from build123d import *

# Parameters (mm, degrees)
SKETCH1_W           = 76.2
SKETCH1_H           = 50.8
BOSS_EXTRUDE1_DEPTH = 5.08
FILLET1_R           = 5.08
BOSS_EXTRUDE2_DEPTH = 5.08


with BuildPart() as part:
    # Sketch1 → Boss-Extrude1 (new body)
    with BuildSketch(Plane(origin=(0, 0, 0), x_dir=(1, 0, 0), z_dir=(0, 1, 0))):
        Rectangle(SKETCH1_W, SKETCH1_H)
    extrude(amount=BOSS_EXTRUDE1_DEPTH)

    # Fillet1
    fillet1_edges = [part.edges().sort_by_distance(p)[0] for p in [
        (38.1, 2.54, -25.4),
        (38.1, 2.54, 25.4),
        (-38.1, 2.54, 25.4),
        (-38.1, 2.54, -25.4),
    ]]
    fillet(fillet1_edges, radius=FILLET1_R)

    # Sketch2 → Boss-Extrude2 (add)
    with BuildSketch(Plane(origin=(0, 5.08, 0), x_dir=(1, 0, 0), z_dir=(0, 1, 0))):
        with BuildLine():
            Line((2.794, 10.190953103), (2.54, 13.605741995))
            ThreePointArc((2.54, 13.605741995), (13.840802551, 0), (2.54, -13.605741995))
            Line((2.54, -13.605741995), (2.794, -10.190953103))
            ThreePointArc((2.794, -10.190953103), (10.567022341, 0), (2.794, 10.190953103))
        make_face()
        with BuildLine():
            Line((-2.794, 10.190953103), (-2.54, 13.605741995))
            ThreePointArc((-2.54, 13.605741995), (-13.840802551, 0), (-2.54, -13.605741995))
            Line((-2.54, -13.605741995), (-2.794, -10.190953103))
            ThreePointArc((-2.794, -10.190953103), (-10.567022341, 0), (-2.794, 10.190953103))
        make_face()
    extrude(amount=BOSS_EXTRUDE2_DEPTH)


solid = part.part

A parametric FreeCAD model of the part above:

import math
import FreeCAD as App
import Part
import Sketcher

V = App.Vector
Q = App.Units.Quantity


def edges_at(feature, points):
    """Names of the edges that pass closest to the given points."""
    edges = feature.Shape.Edges
    near = lambda p: min(range(len(edges)), key=lambda i: edges[i].distToShape(Part.Vertex(*p))[0])
    return sorted({f"Edge{near(p) + 1}" for p in points})


def add_polygon(sketch, points):
    """Adds a closed chain of lines whose ends are joined by coincident constraints."""
    first, n = sketch.GeometryCount, len(points)
    for a, b in zip(points, points[1:] + points[:1]):
        sketch.addGeometry(Part.LineSegment(App.Vector(*a, 0), App.Vector(*b, 0)), False)
    for i in range(n):
        sketch.addConstraint(Sketcher.Constraint("Coincident", first + i, 2, first + (i + 1) % n, 1))

doc = App.newDocument("Part")
body = doc.addObject("PartDesign::Body", "Body")

# Sketch on XZ plane
sketch1 = body.newObject("Sketcher::SketchObject", "Sketch")
sketch1.AttachmentSupport = (doc.getObject("XZ_Plane"), [""])
sketch1.MapMode = "FlatFace"
add_polygon(sketch1, [(-38, -25), (-38, 25), (38, 25), (38, -25)])  # lines 0-3
sketch1.addConstraint([
    Sketcher.Constraint("Vertical", 0),
    Sketcher.Constraint("Horizontal", 1),
    Sketcher.Constraint("Vertical", 2),
    Sketcher.Constraint("Horizontal", 3),
    Sketcher.Constraint("Symmetric", 0, 2, 2, 2, -1, 1),
    Sketcher.Constraint("DistanceX", 1, 1, 1, 2, Q("3 in")),
    Sketcher.Constraint("DistanceY", 0, 1, 0, 2, Q("2 in")),
])
pad1 = body.newObject("PartDesign::Pad", "Pad")
pad1.Profile = sketch1
pad1.Length = Q("0.2 in")
pad1.Reversed = True
doc.recompute()

fillet = body.newObject("PartDesign::Fillet", "Fillet")
fillet.Base = (pad1, edges_at(pad1, [
    (38.1, 2.54, -25.4),
    (38.1, 2.54, 25.4),
    (-38.1, 2.54, 25.4),
    (-38.1, 2.54, -25.4),
]))
fillet.Radius = Q("0.2 in")

# Sketch on XZ plane
sketch2 = body.newObject("Sketcher::SketchObject", "Sketch001")
sketch2.AttachmentSupport = (doc.getObject("XZ_Plane"), [""])
sketch2.MapMode = "FlatFace"
sketch2.AttachmentOffset = App.Placement(V(0, 0, -0.2 * 25.4), App.Rotation())
sketch2.addGeometry([
    Part.LineSegment(V(2.5, -13.6, 0), V(2.8, -10.2, 0)),  # 0
    Part.ArcOfCircle(Part.Circle(V(0, 0, 0), V(0, 0, 1), 10.6), math.radians(-75), math.radians(75)),  # 1
    Part.LineSegment(V(2.8, 10.2, 0), V(2.5, 13.6, 0)),  # 2
    Part.ArcOfCircle(Part.Circle(V(0, 0, 0), V(0, 0, 1), 13.8), math.radians(-79), math.radians(79)),  # 3
    Part.LineSegment(V(-2.8, -10.2, 0), V(-2.5, -13.6, 0)),  # 4
    Part.ArcOfCircle(Part.Circle(V(0, 0, 0), V(0, 0, 1), 13.8), math.radians(101), math.radians(259)),  # 5
    Part.LineSegment(V(-2.5, 13.6, 0), V(-2.8, 10.2, 0)),  # 6
    Part.ArcOfCircle(Part.Circle(V(0, 0, 0), V(0, 0, 1), 10.6), math.radians(105), math.radians(255)),  # 7
], False)
sketch2.addConstraint([
    Sketcher.Constraint("Coincident", 0, 2, 1, 1),
    Sketcher.Constraint("Coincident", 1, 2, 2, 1),
    Sketcher.Constraint("Coincident", 2, 2, 3, 2),
    Sketcher.Constraint("Coincident", 3, 1, 0, 1),
    Sketcher.Constraint("Coincident", 4, 2, 5, 2),
    Sketcher.Constraint("Coincident", 5, 1, 6, 1),
    Sketcher.Constraint("Coincident", 6, 2, 7, 1),
    Sketcher.Constraint("Coincident", 7, 2, 4, 1),
    Sketcher.Constraint("Coincident", 1, 3, -1, 1),
    Sketcher.Constraint("Coincident", 3, 3, -1, 1),
    Sketcher.Constraint("Coincident", 5, 3, -1, 1),
    Sketcher.Constraint("Coincident", 7, 3, -1, 1),
    Sketcher.Constraint("Equal", 3, 5),
    Sketcher.Constraint("Equal", 1, 7),
    Sketcher.Constraint("Parallel", 2, 4),
    Sketcher.Constraint("Parallel", 0, 6),
    Sketcher.Constraint("Horizontal", 3, 1, 4, 2),
    Sketcher.Constraint("Horizontal", 2, 2, 5, 1),
    Sketcher.Constraint("Horizontal", 1, 2, 6, 2),
    Sketcher.Constraint("Vertical", 0, 2, 1, 2),
    Sketcher.Constraint("DistanceX", -1, 1, 2, 2, Q("0.1 in")),
    Sketcher.Constraint("DistanceX", -1, 1, 0, 2, Q("0.11 in")),
    Sketcher.Constraint("Radius", 1, 10.567022),
    Sketcher.Constraint("Radius", 3, 13.840803),
])
pad2 = body.newObject("PartDesign::Pad", "Pad001")
pad2.Profile = sketch2
pad2.Length = Q("0.2 in")
pad2.Reversed = True

doc.recompute()
